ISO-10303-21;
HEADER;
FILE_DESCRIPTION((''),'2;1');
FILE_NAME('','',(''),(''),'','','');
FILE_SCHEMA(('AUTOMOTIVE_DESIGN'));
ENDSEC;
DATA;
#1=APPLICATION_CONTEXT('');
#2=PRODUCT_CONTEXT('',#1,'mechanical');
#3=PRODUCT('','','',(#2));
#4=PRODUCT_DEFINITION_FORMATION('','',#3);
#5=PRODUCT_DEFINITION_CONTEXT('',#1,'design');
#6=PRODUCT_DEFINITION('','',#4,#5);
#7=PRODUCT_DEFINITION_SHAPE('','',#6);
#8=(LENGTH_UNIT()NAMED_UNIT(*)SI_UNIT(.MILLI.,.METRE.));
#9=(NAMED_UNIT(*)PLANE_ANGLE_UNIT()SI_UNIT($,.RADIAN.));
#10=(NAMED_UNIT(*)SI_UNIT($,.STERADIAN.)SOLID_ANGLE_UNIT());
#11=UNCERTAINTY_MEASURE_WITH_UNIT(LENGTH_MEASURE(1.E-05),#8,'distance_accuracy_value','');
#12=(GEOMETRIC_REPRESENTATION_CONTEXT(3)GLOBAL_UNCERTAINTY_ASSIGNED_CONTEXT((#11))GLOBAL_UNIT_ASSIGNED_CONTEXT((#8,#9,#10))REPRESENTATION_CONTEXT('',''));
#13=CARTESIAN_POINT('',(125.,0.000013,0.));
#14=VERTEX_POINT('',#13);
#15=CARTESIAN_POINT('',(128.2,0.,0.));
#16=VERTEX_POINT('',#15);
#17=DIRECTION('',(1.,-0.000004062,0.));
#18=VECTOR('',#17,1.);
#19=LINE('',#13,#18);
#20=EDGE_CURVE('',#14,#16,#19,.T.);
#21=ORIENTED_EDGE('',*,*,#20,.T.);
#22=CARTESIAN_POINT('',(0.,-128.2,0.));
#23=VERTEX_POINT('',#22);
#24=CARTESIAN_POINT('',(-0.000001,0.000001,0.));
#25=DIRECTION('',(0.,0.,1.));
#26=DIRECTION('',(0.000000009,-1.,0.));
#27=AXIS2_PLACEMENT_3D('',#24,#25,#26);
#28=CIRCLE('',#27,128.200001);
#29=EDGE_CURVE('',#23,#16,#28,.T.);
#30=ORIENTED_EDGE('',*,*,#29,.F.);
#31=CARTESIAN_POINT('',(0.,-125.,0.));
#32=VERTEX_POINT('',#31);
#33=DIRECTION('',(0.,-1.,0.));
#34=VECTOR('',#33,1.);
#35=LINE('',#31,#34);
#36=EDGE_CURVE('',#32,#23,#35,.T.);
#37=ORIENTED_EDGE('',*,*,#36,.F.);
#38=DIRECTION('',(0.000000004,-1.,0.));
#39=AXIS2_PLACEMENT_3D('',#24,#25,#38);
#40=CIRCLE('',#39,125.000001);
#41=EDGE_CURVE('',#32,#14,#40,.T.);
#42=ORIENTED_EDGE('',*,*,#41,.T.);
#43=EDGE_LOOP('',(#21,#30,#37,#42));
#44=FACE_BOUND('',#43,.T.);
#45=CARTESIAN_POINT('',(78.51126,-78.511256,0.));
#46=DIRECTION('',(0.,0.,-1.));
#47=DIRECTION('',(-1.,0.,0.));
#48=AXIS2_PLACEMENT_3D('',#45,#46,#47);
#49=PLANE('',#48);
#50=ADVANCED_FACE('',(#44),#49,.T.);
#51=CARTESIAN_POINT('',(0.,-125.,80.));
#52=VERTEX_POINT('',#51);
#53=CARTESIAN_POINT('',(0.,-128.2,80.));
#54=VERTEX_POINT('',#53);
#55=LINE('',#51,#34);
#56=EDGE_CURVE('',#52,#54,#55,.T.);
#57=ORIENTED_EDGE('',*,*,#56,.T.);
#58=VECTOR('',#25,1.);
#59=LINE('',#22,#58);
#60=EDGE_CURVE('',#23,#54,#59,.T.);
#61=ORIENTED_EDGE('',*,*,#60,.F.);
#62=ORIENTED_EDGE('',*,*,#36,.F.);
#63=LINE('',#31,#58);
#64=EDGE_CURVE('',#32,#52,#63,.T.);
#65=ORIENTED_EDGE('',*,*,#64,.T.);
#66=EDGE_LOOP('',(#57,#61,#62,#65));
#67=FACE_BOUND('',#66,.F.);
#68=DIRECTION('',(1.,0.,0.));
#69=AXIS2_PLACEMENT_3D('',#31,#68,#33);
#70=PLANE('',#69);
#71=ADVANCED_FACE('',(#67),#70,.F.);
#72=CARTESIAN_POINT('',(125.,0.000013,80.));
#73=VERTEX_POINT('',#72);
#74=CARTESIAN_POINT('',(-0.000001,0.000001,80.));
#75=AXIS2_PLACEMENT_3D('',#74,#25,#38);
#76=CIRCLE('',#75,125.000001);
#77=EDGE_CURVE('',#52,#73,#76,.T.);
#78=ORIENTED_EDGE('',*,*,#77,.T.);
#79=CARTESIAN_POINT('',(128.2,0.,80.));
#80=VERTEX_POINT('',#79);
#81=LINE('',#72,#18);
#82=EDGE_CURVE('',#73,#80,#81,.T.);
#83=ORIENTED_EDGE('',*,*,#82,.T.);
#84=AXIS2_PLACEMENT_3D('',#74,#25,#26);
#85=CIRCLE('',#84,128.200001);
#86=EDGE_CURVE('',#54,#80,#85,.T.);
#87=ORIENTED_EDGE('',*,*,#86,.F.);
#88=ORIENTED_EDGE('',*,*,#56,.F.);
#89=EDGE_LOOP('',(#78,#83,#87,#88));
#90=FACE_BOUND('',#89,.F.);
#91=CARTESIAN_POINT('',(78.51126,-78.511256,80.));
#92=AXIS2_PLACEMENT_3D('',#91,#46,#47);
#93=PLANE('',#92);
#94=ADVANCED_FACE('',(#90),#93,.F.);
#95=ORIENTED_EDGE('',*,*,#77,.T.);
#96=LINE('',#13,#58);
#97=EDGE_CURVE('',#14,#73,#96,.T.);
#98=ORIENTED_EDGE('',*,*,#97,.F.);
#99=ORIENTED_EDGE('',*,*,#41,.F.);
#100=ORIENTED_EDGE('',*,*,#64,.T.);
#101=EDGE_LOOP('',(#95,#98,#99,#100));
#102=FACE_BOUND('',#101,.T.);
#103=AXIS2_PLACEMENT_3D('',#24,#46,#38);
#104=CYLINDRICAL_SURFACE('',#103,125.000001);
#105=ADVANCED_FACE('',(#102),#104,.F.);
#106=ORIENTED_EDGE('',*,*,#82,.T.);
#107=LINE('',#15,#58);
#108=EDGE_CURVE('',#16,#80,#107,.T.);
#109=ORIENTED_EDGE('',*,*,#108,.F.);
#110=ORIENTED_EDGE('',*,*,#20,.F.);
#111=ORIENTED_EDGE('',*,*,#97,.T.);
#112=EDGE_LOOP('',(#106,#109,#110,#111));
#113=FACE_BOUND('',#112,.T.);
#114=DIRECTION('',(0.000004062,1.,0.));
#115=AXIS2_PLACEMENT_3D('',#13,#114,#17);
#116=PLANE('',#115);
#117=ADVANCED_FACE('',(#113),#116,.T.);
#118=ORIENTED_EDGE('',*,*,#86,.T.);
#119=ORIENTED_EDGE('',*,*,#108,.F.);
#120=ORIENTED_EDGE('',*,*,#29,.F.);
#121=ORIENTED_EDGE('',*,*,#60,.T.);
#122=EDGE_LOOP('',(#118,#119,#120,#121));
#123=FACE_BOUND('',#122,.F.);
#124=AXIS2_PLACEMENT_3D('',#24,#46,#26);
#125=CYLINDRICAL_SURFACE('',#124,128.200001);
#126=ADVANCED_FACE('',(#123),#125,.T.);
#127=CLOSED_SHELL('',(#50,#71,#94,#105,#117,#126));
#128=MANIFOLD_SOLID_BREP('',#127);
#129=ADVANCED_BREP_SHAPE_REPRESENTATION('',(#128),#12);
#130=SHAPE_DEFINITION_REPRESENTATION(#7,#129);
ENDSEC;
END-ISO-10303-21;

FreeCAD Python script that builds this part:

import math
import FreeCAD as App
import Part
import Sketcher

doc = App.newDocument("Part")
params = doc.addObject("Spreadsheet::Sheet", "Params")
for row, (alias, value) in enumerate([
    ("sketch1_radius", "125.000001 mm"),
    ("sketch1_radius2", "128.200001 mm"),
    ("pad1_length", "80 mm"),
], start=1):
    params.set(f"A{row}", alias)
    params.set(f"B{row}", "=" + value)
    params.setAlias(f"B{row}", alias)

body = doc.addObject("PartDesign::Body", "Body")

# Sketch on XY plane
sketch1 = body.newObject("Sketcher::SketchObject", "Sketch")
sketch1.AttachmentSupport = (doc.getObject("XY_Plane"), [""])
sketch1.MapMode = "FlatFace"
sketch1.addGeometry(Part.ArcOfCircle(Part.Circle(App.Vector(0, 0, 0), App.Vector(0, 0, 1), 125), math.radians(-90), math.radians(0)), False)
sketch1.addGeometry(Part.LineSegment(App.Vector(0, -125, 0), App.Vector(0, -128.2, 0)), False)
sketch1.addGeometry(Part.ArcOfCircle(Part.Circle(App.Vector(0, 0, 0), App.Vector(0, 0, 1), 128.2), math.radians(-90), math.radians(0)), False)
sketch1.addGeometry(Part.LineSegment(App.Vector(128.2, 0, 0), App.Vector(125, 0, 0)), False)
sketch1.addConstraint(Sketcher.Constraint("Coincident", 0, 1, 1, 1))
sketch1.addConstraint(Sketcher.Constraint("Coincident", 1, 2, 2, 1))
sketch1.addConstraint(Sketcher.Constraint("Coincident", 2, 2, 3, 1))
sketch1.addConstraint(Sketcher.Constraint("Coincident", 3, 2, 0, 2))
sketch1.addConstraint(Sketcher.Constraint("Vertical", 1))
sketch1.addConstraint(Sketcher.Constraint("Coincident", 0, 3, -1, 1))
sketch1.addConstraint(Sketcher.Constraint("Coincident", 2, 3, -1, 1))
sketch1.addConstraint(Sketcher.Constraint("PointOnObject", 0, 1, -2))
sketch1.addConstraint(Sketcher.Constraint("PointOnObject", 2, 2, -1))
sketch1.addConstraint(Sketcher.Constraint("Radius", 0, 125.000001))
sketch1.addConstraint(Sketcher.Constraint("Radius", 2, 128.200001))
sketch1.addConstraint(Sketcher.Constraint("DistanceY", 0, 1, 3, 2, 125.000013))
sketch1.setExpression("Constraints[9]", "Params.sketch1_radius")
sketch1.setExpression("Constraints[10]", "Params.sketch1_radius2")
pad1 = body.newObject("PartDesign::Pad", "Pad")
pad1.Profile = sketch1
pad1.setExpression("Length", "Params.pad1_length")

doc.recompute()
